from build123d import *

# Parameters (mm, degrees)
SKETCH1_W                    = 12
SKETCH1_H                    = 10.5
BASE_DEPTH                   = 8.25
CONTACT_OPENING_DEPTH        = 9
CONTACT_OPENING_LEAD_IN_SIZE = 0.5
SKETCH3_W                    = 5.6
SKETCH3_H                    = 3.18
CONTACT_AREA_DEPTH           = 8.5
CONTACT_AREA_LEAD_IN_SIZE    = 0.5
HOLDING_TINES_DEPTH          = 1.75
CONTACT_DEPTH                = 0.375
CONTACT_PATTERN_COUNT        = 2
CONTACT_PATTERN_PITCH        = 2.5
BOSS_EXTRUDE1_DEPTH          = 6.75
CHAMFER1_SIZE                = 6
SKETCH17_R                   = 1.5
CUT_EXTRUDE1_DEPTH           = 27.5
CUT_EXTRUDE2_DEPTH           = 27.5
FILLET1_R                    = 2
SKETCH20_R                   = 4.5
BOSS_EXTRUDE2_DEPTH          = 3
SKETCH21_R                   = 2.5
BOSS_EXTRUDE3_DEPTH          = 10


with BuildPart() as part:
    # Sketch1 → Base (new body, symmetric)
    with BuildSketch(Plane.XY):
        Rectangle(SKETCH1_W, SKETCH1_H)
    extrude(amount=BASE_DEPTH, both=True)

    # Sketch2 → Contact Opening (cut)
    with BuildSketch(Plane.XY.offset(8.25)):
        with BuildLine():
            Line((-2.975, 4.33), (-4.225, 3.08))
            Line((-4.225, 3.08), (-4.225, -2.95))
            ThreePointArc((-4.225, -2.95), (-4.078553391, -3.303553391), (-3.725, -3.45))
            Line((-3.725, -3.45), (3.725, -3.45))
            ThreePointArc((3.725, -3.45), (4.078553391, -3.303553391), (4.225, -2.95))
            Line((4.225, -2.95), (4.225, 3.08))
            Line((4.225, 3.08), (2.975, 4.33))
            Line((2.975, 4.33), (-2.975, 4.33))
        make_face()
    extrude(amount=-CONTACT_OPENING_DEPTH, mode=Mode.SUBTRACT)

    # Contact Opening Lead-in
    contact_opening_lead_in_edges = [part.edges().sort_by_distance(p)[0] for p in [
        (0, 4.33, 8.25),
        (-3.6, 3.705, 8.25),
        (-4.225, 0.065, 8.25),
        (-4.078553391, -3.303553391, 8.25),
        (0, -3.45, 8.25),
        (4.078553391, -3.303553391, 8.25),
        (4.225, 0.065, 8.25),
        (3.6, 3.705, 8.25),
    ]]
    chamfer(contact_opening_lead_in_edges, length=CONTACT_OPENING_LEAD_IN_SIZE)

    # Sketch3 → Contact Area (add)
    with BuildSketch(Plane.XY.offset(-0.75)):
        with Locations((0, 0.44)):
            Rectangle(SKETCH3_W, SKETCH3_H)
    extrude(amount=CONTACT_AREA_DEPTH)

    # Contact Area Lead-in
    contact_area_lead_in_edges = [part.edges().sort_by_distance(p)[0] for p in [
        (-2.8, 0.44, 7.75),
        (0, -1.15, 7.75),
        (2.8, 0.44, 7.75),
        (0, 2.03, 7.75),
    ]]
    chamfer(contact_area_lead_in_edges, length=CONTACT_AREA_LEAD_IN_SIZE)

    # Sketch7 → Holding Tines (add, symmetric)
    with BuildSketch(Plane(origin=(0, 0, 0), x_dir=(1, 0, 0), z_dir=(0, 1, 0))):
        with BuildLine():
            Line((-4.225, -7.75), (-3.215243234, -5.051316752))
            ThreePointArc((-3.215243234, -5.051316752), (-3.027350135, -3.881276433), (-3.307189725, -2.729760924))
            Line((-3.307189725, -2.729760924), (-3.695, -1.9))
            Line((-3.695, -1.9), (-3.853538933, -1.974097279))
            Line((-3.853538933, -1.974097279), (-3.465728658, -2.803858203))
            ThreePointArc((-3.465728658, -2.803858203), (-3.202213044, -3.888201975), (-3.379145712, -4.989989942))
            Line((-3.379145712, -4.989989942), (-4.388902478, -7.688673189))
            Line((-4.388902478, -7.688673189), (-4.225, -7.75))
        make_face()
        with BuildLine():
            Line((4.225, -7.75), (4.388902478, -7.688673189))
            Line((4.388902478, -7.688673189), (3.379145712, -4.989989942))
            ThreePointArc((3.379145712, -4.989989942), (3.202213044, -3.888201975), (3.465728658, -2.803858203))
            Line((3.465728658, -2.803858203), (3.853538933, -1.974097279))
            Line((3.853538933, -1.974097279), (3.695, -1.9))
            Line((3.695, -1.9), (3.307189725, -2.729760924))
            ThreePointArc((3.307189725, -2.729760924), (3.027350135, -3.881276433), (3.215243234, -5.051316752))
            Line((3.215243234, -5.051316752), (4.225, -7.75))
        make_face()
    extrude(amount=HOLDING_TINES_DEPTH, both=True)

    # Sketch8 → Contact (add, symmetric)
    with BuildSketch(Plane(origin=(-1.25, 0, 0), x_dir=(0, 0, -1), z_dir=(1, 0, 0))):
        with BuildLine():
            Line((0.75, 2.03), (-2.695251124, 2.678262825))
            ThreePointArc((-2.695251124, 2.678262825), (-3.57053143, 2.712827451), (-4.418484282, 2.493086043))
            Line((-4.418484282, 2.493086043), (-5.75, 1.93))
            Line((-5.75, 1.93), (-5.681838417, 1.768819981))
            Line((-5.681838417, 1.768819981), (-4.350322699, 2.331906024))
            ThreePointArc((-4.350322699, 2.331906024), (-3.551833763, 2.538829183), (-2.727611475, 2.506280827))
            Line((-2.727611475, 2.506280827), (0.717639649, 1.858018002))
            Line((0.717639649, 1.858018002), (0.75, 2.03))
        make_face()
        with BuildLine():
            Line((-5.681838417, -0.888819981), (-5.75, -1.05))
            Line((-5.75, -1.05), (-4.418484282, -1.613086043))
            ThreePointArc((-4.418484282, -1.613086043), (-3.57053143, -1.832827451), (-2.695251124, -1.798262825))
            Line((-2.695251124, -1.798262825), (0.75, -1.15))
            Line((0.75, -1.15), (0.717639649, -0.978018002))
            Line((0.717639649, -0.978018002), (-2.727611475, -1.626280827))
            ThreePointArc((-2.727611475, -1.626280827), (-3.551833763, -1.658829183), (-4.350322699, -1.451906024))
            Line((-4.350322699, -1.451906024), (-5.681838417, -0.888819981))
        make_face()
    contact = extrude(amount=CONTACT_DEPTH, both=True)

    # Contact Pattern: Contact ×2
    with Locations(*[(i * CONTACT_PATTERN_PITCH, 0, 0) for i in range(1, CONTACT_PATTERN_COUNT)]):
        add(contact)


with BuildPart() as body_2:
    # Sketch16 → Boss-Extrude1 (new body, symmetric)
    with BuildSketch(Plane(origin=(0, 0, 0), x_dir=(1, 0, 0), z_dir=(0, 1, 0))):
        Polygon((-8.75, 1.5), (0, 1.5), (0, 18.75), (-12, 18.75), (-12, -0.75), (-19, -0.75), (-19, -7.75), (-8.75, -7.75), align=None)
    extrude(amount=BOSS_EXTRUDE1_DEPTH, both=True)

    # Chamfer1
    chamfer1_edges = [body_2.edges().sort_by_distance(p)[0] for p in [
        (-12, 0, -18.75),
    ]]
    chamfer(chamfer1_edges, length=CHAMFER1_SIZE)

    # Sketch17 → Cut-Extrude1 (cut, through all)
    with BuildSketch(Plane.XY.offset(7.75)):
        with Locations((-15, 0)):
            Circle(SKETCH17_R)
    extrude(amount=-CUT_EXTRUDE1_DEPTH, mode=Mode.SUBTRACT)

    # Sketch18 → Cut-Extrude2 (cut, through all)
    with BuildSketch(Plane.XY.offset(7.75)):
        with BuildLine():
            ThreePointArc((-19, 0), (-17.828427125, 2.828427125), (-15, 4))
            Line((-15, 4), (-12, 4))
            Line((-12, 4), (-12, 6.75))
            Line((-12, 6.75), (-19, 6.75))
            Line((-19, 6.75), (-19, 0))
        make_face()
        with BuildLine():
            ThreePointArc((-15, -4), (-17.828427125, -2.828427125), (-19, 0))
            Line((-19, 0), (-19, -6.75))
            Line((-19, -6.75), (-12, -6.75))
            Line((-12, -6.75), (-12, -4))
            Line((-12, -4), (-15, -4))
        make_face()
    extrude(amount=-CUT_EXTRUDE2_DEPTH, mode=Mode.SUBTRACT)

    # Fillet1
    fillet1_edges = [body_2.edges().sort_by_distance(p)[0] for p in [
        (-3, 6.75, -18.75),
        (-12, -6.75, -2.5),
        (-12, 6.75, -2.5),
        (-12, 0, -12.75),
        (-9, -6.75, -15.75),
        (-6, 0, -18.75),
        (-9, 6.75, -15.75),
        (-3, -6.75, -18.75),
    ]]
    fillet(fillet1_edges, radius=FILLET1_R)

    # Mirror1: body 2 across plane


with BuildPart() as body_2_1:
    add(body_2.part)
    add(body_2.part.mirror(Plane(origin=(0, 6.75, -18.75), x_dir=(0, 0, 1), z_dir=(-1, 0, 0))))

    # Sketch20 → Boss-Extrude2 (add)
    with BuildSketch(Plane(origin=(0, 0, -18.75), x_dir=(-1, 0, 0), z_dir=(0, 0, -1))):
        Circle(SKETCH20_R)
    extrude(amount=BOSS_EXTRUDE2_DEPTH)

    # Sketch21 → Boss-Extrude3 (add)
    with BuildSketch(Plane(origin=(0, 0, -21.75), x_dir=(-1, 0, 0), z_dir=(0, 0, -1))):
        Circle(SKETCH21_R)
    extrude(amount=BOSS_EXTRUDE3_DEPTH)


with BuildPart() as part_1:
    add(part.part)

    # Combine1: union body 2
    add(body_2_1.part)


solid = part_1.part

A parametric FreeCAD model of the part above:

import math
import FreeCAD as App
import Part
import Sketcher
Q = App.Units.Quantity


def edges_at(feature, points):
    """Names of the edges that pass closest to the given points."""
    edges = feature.Shape.Edges
    near = lambda p: min(range(len(edges)), key=lambda i: edges[i].distToShape(Part.Vertex(*p))[0])
    return sorted({f"Edge{near(p) + 1}" for p in points})


def add_polygon(sketch, points):
    """Adds a closed chain of lines whose ends are joined by coincident constraints."""
    first, n = sketch.GeometryCount, len(points)
    for a, b in zip(points, points[1:] + points[:1]):
        sketch.addGeometry(Part.LineSegment(App.Vector(*a, 0), App.Vector(*b, 0)), False)
    for i in range(n):
        sketch.addConstraint(Sketcher.Constraint("Coincident", first + i, 2, first + (i + 1) % n, 1))

doc = App.newDocument("Part")
body = doc.addObject("PartDesign::Body", "Body")

sketch1 = body.newObject("Sketcher::SketchObject", "Sketch")
sketch1.AttachmentSupport = (doc.getObject("XY_Plane"), [""])
sketch1.MapMode = "FlatFace"
add_polygon(sketch1, [(-6, 5), (-6, -5), (6, -5), (6, 5)])
sketch1.addConstraint([
    Sketcher.Constraint("Vertical", 0),
    Sketcher.Constraint("Horizontal", 1),
    Sketcher.Constraint("Vertical", 2),
    Sketcher.Constraint("Horizontal", 3),
    Sketcher.Constraint("Symmetric", 0, 2, 2, 2, -1, 1),
    Sketcher.Constraint("DistanceX", 1, 1, 1, 2, Q("12 mm")),
    Sketcher.Constraint("DistanceY", 0, 2, 0, 1, Q("10.5 mm")),
])
pad1 = body.newObject("PartDesign::Pad", "Pad")
pad1.Profile = sketch1
pad1.Length = 16.5
pad1.Midplane = True

sketch2 = body.newObject("Sketcher::SketchObject", "Sketch001")
sketch2.AttachmentSupport = (doc.getObject("XY_Plane"), [""])
sketch2.MapMode = "FlatFace"
sketch2.AttachmentOffset = App.Placement(App.Vector(0, 0, 8.25), App.Rotation())
sketch2.addGeometry([
    Part.LineSegment(App.Vector(-2.98, 4.33, 0), App.Vector(-4.22, 3.08, 0)),
    Part.LineSegment(App.Vector(-4.22, 3.08, 0), App.Vector(-4.22, -2.95, 0)),
    Part.ArcOfCircle(Part.Circle(App.Vector(-3.73, -2.95, 0), App.Vector(0, 0, 1), 0.5), math.radians(180), math.radians(270)),
    Part.LineSegment(App.Vector(-3.73, -3.45, 0), App.Vector(3.73, -3.45, 0)),
    Part.ArcOfCircle(Part.Circle(App.Vector(3.73, -2.95, 0), App.Vector(0, 0, 1), 0.5), math.radians(-90), math.radians(0)),
    Part.LineSegment(App.Vector(4.22, -2.95, 0), App.Vector(4.22, 3.08, 0)),
    Part.LineSegment(App.Vector(4.22, 3.08, 0), App.Vector(2.98, 4.33, 0)),
    Part.LineSegment(App.Vector(2.98, 4.33, 0), App.Vector(-2.98, 4.33, 0)),
], False)
sketch2.addConstraint([
    Sketcher.Constraint("Coincident", 0, 2, 1, 1),
    Sketcher.Constraint("Tangent", 1, 2, 2, 1),
    Sketcher.Constraint("Tangent", 2, 2, 3, 1),
    Sketcher.Constraint("Tangent", 3, 2, 4, 1),
    Sketcher.Constraint("Tangent", 4, 2, 5, 1),
    Sketcher.Constraint("Coincident", 5, 2, 6, 1),
    Sketcher.Constraint("Coincident", 6, 2, 7, 1),
    Sketcher.Constraint("Coincident", 7, 2, 0, 1),
    Sketcher.Constraint("Vertical", 1),
    Sketcher.Constraint("Horizontal", 3),
    Sketcher.Constraint("Vertical", 5),
    Sketcher.Constraint("Horizontal", 7),
    Sketcher.Constraint("Equal", 2, 4),
    Sketcher.Constraint("Symmetric", 0, 2, 5, 2, -2),
    Sketcher.Constraint("Perpendicular", 0, 6),
    Sketcher.Constraint("Equal", 0, 6),
    Sketcher.Constraint("Radius", 2, Q("0.5 mm")),
    Sketcher.Constraint("DistanceX", 3, 1, 3, 2, Q("7.45 mm")),
    Sketcher.Constraint("DistanceX", 7, 2, 7, 1, Q("5.95 mm")),
    Sketcher.Constraint("DistanceY", 1, 2, 1, 1, Q("6.03 mm")),
    Sketcher.Constraint("DistanceY", 2, 3, -1, 1, Q("2.95 mm")),
])
pocket1 = body.newObject("PartDesign::Pocket", "Pocket")
pocket1.Profile = sketch2
pocket1.Length = 9
doc.recompute()

chamfer = body.newObject("PartDesign::Chamfer", "Chamfer")
chamfer.Base = (pocket1, edges_at(pocket1, [
    (0, 4.33, 8.25),
    (-3.6, 3.705, 8.25),
    (-4.225, 0.065, 8.25),
    (-4.079, -3.304, 8.25),
    (0, -3.45, 8.25),
    (4.079, -3.304, 8.25),
    (4.225, 0.065, 8.25),
    (3.6, 3.705, 8.25),
]))
chamfer.Size = 0.5

sketch3 = body.newObject("Sketcher::SketchObject", "Sketch002")
sketch3.AttachmentSupport = (doc.getObject("XY_Plane"), [""])
sketch3.MapMode = "FlatFace"
sketch3.AttachmentOffset = App.Placement(App.Vector(0, 0, -0.75), App.Rotation())
add_polygon(sketch3, [(-2.8, 2), (-2.8, -1.1), (2.8, -1.1), (2.8, 2)])
sketch3.addConstraint([
    Sketcher.Constraint("Vertical", 0),
    Sketcher.Constraint("Horizontal", 1),
    Sketcher.Constraint("Vertical", 2),
    Sketcher.Constraint("Horizontal", 3),
    Sketcher.Constraint("DistanceX", 1, 1, 1, 2, Q("5.6 mm")),
    Sketcher.Constraint("DistanceY", 0, 2, 0, 1, Q("3.18 mm")),
    Sketcher.Constraint("DistanceX", 0, 2, -1, 1, Q("2.8 mm")),
    Sketcher.Constraint("DistanceY", 0, 2, -1, 1, Q("1.15 mm")),
])
pad2 = body.newObject("PartDesign::Pad", "Pad001")
pad2.Profile = sketch3
pad2.Length = 8.5
doc.recompute()

chamfer2 = body.newObject("PartDesign::Chamfer", "Chamfer001")
chamfer2.Base = (pad2, edges_at(pad2, [
    (-2.8, 0.44, 7.75),
    (0, -1.15, 7.75),
    (2.8, 0.44, 7.75),
    (0, 2.03, 7.75),
]))
chamfer2.Size = 0.5

sketch4 = body.newObject("Sketcher::SketchObject", "Sketch003")
sketch4.AttachmentSupport = (doc.getObject("XZ_Plane"), [""])
sketch4.MapMode = "FlatFace"
sketch4.addGeometry([
    Part.LineSegment(App.Vector(-4.22, 7.75, 0), App.Vector(-3.22, 5.05, 0)),
    Part.ArcOfCircle(Part.Circle(App.Vector(-6.03, 4, 0), App.Vector(0, 0, 1), 3), math.radians(-25), math.radians(21)),
    Part.LineSegment(App.Vector(-3.31, 2.73, 0), App.Vector(-3.69, 1.9, 0)),
    Part.LineSegment(App.Vector(-3.69, 1.9, 0), App.Vector(-3.85, 1.97, 0)),
    Part.LineSegment(App.Vector(-3.85, 1.97, 0), App.Vector(-3.47, 2.8, 0)),
    Part.ArcOfCircle(Part.Circle(App.Vector(-6.03, 4, 0), App.Vector(0, 0, 1), 2.83), math.radians(-25), math.radians(21)),
    Part.LineSegment(App.Vector(-3.38, 4.99, 0), App.Vector(-4.39, 7.69, 0)),
    Part.LineSegment(App.Vector(-4.39, 7.69, 0), App.Vector(-4.22, 7.75, 0)),
    Part.LineSegment(App.Vector(4.22, 7.75, 0), App.Vector(4.39, 7.69, 0)),
    Part.LineSegment(App.Vector(4.39, 7.69, 0), App.Vector(3.38, 4.99, 0)),
    Part.ArcOfCircle(Part.Circle(App.Vector(6.03, 4, 0), App.Vector(0, 0, 1), 2.83), math.radians(159), math.radians(205)),
    Part.LineSegment(App.Vector(3.47, 2.8, 0), App.Vector(3.85, 1.97, 0)),
    Part.LineSegment(App.Vector(3.85, 1.97, 0), App.Vector(3.69, 1.9, 0)),
    Part.LineSegment(App.Vector(3.69, 1.9, 0), App.Vector(3.31, 2.73, 0)),
    Part.ArcOfCircle(Part.Circle(App.Vector(6.03, 4, 0), App.Vector(0, 0, 1), 3), math.radians(159), math.radians(205)),
    Part.LineSegment(App.Vector(3.22, 5.05, 0), App.Vector(4.22, 7.75, 0)),
], False)
sketch4.addConstraint([
    Sketcher.Constraint("Tangent", 0, 2, 1, 2),
    Sketcher.Constraint("Tangent", 1, 1, 2, 1),
    Sketcher.Constraint("Coincident", 2, 2, 3, 1),
    Sketcher.Constraint("Coincident", 3, 2, 4, 1),
    Sketcher.Constraint("Tangent", 4, 2, 5, 1),
    Sketcher.Constraint("Tangent", 5, 2, 6, 1),
    Sketcher.Constraint("Coincident", 6, 2, 7, 1),
    Sketcher.Constraint("Coincident", 7, 2, 0, 1),
    Sketcher.Constraint("Coincident", 8, 2, 9, 1),
    Sketcher.Constraint("Tangent", 9, 2, 10, 1),
    Sketcher.Constraint("Tangent", 10, 2, 11, 1),
    Sketcher.Constraint("Coincident", 11, 2, 12, 1),
    Sketcher.Constraint("Coincident", 12, 2, 13, 1),
    Sketcher.Constraint("Tangent", 13, 2, 14, 2),
    Sketcher.Constraint("Tangent", 14, 1, 15, 1),
    Sketcher.Constraint("Coincident", 15, 2, 8, 1),
    Sketcher.Constraint("Coincident", 5, 3, 1, 3),
    Sketcher.Constraint("Coincident", 14, 3, 10, 3),
    Sketcher.Constraint("Equal", 5, 10),
    Sketcher.Constraint("Equal", 1, 14),
    Sketcher.Constraint("Symmetric", 1, 3, 10, 3, -2),
    Sketcher.Constraint("Symmetric", 6, 2, 8, 2, -2),
    Sketcher.Constraint("Symmetric", 3, 2, 11, 2, -2),
    Sketcher.Constraint("Symmetric", 2, 2, 12, 2, -2),
    Sketcher.Constraint("Symmetric", 7, 2, 15, 2, -2),
    Sketcher.Constraint("Perpendicular", 2, 3),
    Sketcher.Constraint("Perpendicular", 3, 4),
    Sketcher.Constraint("Parallel", 0, 6),
    Sketcher.Constraint("Perpendicular", 6, 7),
    Sketcher.Constraint("Radius", 1, Q("3 mm")),
    Sketcher.Constraint("DistanceY", -1, 1, 1, 3, Q("4 mm")),
    Sketcher.Constraint("Radius", 5, Q("2.825 mm")),
    Sketcher.Constraint("DistanceY", -1, 1, 2, 2, Q("1.9 mm")),
    Sketcher.Constraint("DistanceX", 1, 3, 7, 2, Q("1.8 mm")),
    Sketcher.Constraint("DistanceY", -1, 1, 7, 2, Q("7.75 mm")),
    Sketcher.Constraint("DistanceX", 1, 3, 10, 3, Q("12.05 mm")),
    Sketcher.Constraint("DistanceX", 1, 3, 2, 2, Q("2.33 mm")),
])
pad3 = body.newObject("PartDesign::Pad", "Pad002")
pad3.Profile = sketch4
pad3.Length = 3.5
pad3.Midplane = True

sketch5 = body.newObject("Sketcher::SketchObject", "Sketch004")
sketch5.AttachmentSupport = (doc.getObject("YZ_Plane"), [""])
sketch5.MapMode = "FlatFace"
sketch5.AttachmentOffset = App.Placement(App.Vector(0, 0, -1.25), App.Rotation())
sketch5.addGeometry([
    Part.LineSegment(App.Vector(2.03, -0.75, 0), App.Vector(2.68, 2.7, 0)),
    Part.ArcOfCircle(Part.Circle(App.Vector(-0.27, 3.25, 0), App.Vector(0, 0, 1), 3), math.radians(-11), math.radians(23)),
    Part.LineSegment(App.Vector(2.49, 4.42, 0), App.Vector(1.93, 5.75, 0)),
    Part.LineSegment(App.Vector(1.93, 5.75, 0), App.Vector(1.77, 5.68, 0)),
    Part.LineSegment(App.Vector(1.77, 5.68, 0), App.Vector(2.33, 4.35, 0)),
    Part.ArcOfCircle(Part.Circle(App.Vector(-0.27, 3.25, 0), App.Vector(0, 0, 1), 2.83), math.radians(-11), math.radians(23)),
    Part.LineSegment(App.Vector(2.51, 2.73, 0), App.Vector(1.86, -0.72, 0)),
    Part.LineSegment(App.Vector(1.86, -0.72, 0), App.Vector(2.03, -0.75, 0)),
    Part.LineSegment(App.Vector(-0.89, 5.68, 0), App.Vector(-1.05, 5.75, 0)),
    Part.LineSegment(App.Vector(-1.05, 5.75, 0), App.Vector(-1.61, 4.42, 0)),
    Part.ArcOfCircle(Part.Circle(App.Vector(1.15, 3.25, 0), App.Vector(0, 0, 1), 3), math.radians(157), math.radians(191)),
    Part.LineSegment(App.Vector(-1.8, 2.7, 0), App.Vector(-1.15, -0.75, 0)),
    Part.LineSegment(App.Vector(-1.15, -0.75, 0), App.Vector(-0.98, -0.72, 0)),
    Part.LineSegment(App.Vector(-0.98, -0.72, 0), App.Vector(-1.63, 2.73, 0)),
    Part.ArcOfCircle(Part.Circle(App.Vector(1.15, 3.25, 0), App.Vector(0, 0, 1), 2.83), math.radians(157), math.radians(191)),
    Part.LineSegment(App.Vector(-1.45, 4.35, 0), App.Vector(-0.89, 5.68, 0)),
], False)
sketch5.addConstraint([
    Sketcher.Constraint("Tangent", 0, 2, 1, 1),
    Sketcher.Constraint("Tangent", 1, 2, 2, 1),
    Sketcher.Constraint("Coincident", 2, 2, 3, 1),
    Sketcher.Constraint("Coincident", 3, 2, 4, 1),
    Sketcher.Constraint("Tangent", 4, 2, 5, 2),
    Sketcher.Constraint("Tangent", 5, 1, 6, 1),
    Sketcher.Constraint("Coincident", 6, 2, 7, 1),
    Sketcher.Constraint("Coincident", 7, 2, 0, 1),
    Sketcher.Constraint("Coincident", 8, 2, 9, 1),
    Sketcher.Constraint("Tangent", 9, 2, 10, 1),
    Sketcher.Constraint("Tangent", 10, 2, 11, 1),
    Sketcher.Constraint("Coincident", 11, 2, 12, 1),
    Sketcher.Constraint("Coincident", 12, 2, 13, 1),
    Sketcher.Constraint("Tangent", 13, 2, 14, 2),
    Sketcher.Constraint("Tangent", 14, 1, 15, 1),
    Sketcher.Constraint("Coincident", 15, 2, 8, 1),
    Sketcher.Constraint("Coincident", 5, 3, 1, 3),
    Sketcher.Constraint("Coincident", 14, 3, 10, 3),
    Sketcher.Constraint("Equal", 1, 10),
    Sketcher.Constraint("Equal", 5, 14),
    Sketcher.Constraint("Perpendicular", 2, 3),
    Sketcher.Constraint("Perpendicular", 3, 4),
    Sketcher.Constraint("Parallel", 0, 6),
    Sketcher.Constraint("Perpendicular", 6, 7),
    Sketcher.Constraint("Perpendicular", 8, 9),
    Sketcher.Constraint("Perpendicular", 11, 12),
    Sketcher.Constraint("Perpendicular", 12, 13),
    Sketcher.Constraint("Parallel", 9, 15),
    Sketcher.Constraint("Horizontal", 5, 3, 10, 3),
    Sketcher.Constraint("Horizontal", 2, 2, 8, 2),
    Sketcher.Constraint("Horizontal", 1, 2, 9, 2),
    Sketcher.Constraint("Horizontal", 0, 2, 10, 2),
    Sketcher.Constraint("Horizontal", 7, 2, 11, 2),
    Sketcher.Constraint("Radius", 1, Q("3 mm")),
    Sketcher.Constraint("Radius", 5, Q("2.825 mm")),
    Sketcher.Constraint("DistanceY", 7, 2, 14, 3, Q("4 mm")),
    Sketcher.Constraint("DistanceY", 14, 3, 2, 2, Q("2.5 mm")),
    Sketcher.Constraint("DistanceX", 1, 3, 2, 2, Q("2.2 mm")),
    Sketcher.Constraint("DistanceX", 1, 3, -1, 1, Q("0.27 mm")),
    Sketcher.Constraint("DistanceY", -1, 1, 1, 3, Q("3.25 mm")),
    Sketcher.Constraint("DistanceX", -1, 1, 10, 3, Q("1.15 mm")),
    Sketcher.Constraint("DistanceX", -1, 1, 7, 2, Q("2.03 mm")),
])
pad4 = body.newObject("PartDesign::Pad", "Pad003")
pad4.Profile = sketch5
pad4.Length = 0.75
pad4.Midplane = True
doc.recompute()

linearpattern = body.newObject("PartDesign::LinearPattern", "LinearPattern")
linearpattern.Originals = [pad4]
linearpattern.Direction = (doc.getObject("X_Axis"), [""])
linearpattern.Mode = "offset"
linearpattern.Offset = 2.5
linearpattern.Occurrences = 2
body.Tip = linearpattern
body2 = doc.addObject("PartDesign::Body", "Body001")

sketch6 = body2.newObject("Sketcher::SketchObject", "Sketch005")
sketch6.AttachmentSupport = (doc.getObject("XZ_Plane001"), [""])
sketch6.MapMode = "FlatFace"
add_polygon(sketch6, [(-9, -2), (0, -2), (0, -19), (-12, -19), (-12, 1), (-19, 1), (-19, 8), (-9, 8)])
sketch6.addConstraint([
    Sketcher.Constraint("Horizontal", 0),
    Sketcher.Constraint("Vertical", 1),
    Sketcher.Constraint("Horizontal", 2),
    Sketcher.Constraint("Vertical", 3),
    Sketcher.Constraint("Horizontal", 4),
    Sketcher.Constraint("Vertical", 5),
    Sketcher.Constraint("Horizontal", 6),
    Sketcher.Constraint("Vertical", 7),
    Sketcher.Constraint("PointOnObject", 0, 2, -2),
    Sketcher.Constraint("Equal", 4, 5),
    Sketcher.Constraint("DistanceX", 2, 2, 2, 1, Q("12 mm")),
    Sketcher.Constraint("DistanceX", 4, 2, 4, 1, Q("7 mm")),
    Sketcher.Constraint("DistanceY", 3, 1, 3, 2, Q("19.5 mm")),
    Sketcher.Constraint("DistanceX", 0, 1, 0, 2, Q("8.75 mm")),
    Sketcher.Constraint("DistanceY", 1, 2, 1, 1, Q("17.25 mm")),
    Sketcher.Constraint("DistanceY", 0, 2, -1, 1, Q("1.5 mm")),
])
pad5 = body2.newObject("PartDesign::Pad", "Pad004")
pad5.Profile = sketch6
pad5.Length = 13.5
pad5.Midplane = True
doc.recompute()

chamfer3 = body2.newObject("PartDesign::Chamfer", "Chamfer002")
chamfer3.Base = (pad5, edges_at(pad5, [(-12, 0, -18.75)]))
chamfer3.Size = 6

sketch7 = body2.newObject("Sketcher::SketchObject", "Sketch006")
sketch7.AttachmentSupport = (doc.getObject("XY_Plane001"), [""])
sketch7.MapMode = "FlatFace"
sketch7.AttachmentOffset = App.Placement(App.Vector(0, 0, 7.75), App.Rotation())
sketch7.addGeometry(Part.Circle(App.Vector(-15, 0, 0), App.Vector(0, 0, 1), 1.5), False)
sketch7.addConstraint([
    Sketcher.Constraint("PointOnObject", 0, 3, -1),
    Sketcher.Constraint("Diameter", 0, Q("3 mm")),
    Sketcher.Constraint("DistanceX", 0, 3, -1, 1, Q("15 mm")),
])
pocket2 = body2.newObject("PartDesign::Pocket", "Pocket001")
pocket2.Profile = sketch7
pocket2.Type = "ThroughAll"

sketch8 = body2.newObject("Sketcher::SketchObject", "Sketch007")
sketch8.AttachmentSupport = (doc.getObject("XY_Plane001"), [""])
sketch8.MapMode = "FlatFace"
sketch8.AttachmentOffset = App.Placement(App.Vector(0, 0, 7.75), App.Rotation())
sketch8.addGeometry([
    Part.ArcOfCircle(Part.Circle(App.Vector(-15, 0, 0), App.Vector(0, 0, 1), 4), math.radians(90), math.radians(180)),
    Part.LineSegment(App.Vector(-15, 4, 0), App.Vector(-12, 4, 0)),
    Part.LineSegment(App.Vector(-12, 4, 0), App.Vector(-12, 6.8, 0)),
    Part.LineSegment(App.Vector(-12, 6.8, 0), App.Vector(-19, 6.8, 0)),
    Part.LineSegment(App.Vector(-19, 6.8, 0), App.Vector(-19, 0, 0)),
    Part.ArcOfCircle(Part.Circle(App.Vector(-15, 0, 0), App.Vector(0, 0, 1), 4), math.radians(180), math.radians(270)),
    Part.LineSegment(App.Vector(-19, 0, 0), App.Vector(-19, -6.8, 0)),
    Part.LineSegment(App.Vector(-19, -6.8, 0), App.Vector(-12, -6.8, 0)),
    Part.LineSegment(App.Vector(-12, -6.8, 0), App.Vector(-12, -4, 0)),
    Part.LineSegment(App.Vector(-12, -4, 0), App.Vector(-15, -4, 0)),
], False)
sketch8.addConstraint([
    Sketcher.Constraint("Tangent", 0, 1, 1, 1),
    Sketcher.Constraint("Coincident", 1, 2, 2, 1),
    Sketcher.Constraint("Coincident", 2, 2, 3, 1),
    Sketcher.Constraint("Coincident", 3, 2, 4, 1),
    Sketcher.Constraint("Tangent", 4, 2, 0, 2),
    Sketcher.Constraint("Tangent", 5, 1, 6, 1),
    Sketcher.Constraint("Coincident", 6, 2, 7, 1),
    Sketcher.Constraint("Coincident", 7, 2, 8, 1),
    Sketcher.Constraint("Coincident", 8, 2, 9, 1),
    Sketcher.Constraint("Tangent", 9, 2, 5, 2),
    Sketcher.Constraint("Horizontal", 1),
    Sketcher.Constraint("Vertical", 2),
    Sketcher.Constraint("Horizontal", 3),
    Sketcher.Constraint("Vertical", 4),
    Sketcher.Constraint("Vertical", 6),
    Sketcher.Constraint("Horizontal", 7),
    Sketcher.Constraint("Vertical", 8),
    Sketcher.Constraint("Horizontal", 9),
    Sketcher.Constraint("Coincident", 5, 3, 0, 3),
    Sketcher.Constraint("Equal", 0, 5),
    Sketcher.Constraint("Symmetric", 2, 2, 7, 2, -1),
    Sketcher.Constraint("PointOnObject", 0, 3, -1),
    Sketcher.Constraint("Radius", 0, Q("4 mm")),
    Sketcher.Constraint("DistanceX", 1, 1, 1, 2, Q("3 mm")),
    Sketcher.Constraint("DistanceX", 0, 3, -1, 1, Q("15 mm")),
    Sketcher.Constraint("DistanceY", 2, 1, 2, 2, Q("2.75 mm")),
])
pocket3 = body2.newObject("PartDesign::Pocket", "Pocket002")
pocket3.Profile = sketch8
pocket3.Type = "ThroughAll"
doc.recompute()

fillet = body2.newObject("PartDesign::Fillet", "Fillet")
fillet.Base = (pocket3, edges_at(pocket3, [
    (-3, 6.75, -18.75),
    (-12, -6.75, -2.5),
    (-12, 6.75, -2.5),
    (-12, 0, -12.75),
    (-9, -6.75, -15.75),
    (-6, 0, -18.75),
    (-9, 6.75, -15.75),
    (-3, -6.75, -18.75),
]))
fillet.Radius = 2
body3 = doc.addObject("PartDesign::Body", "Body002")
doc.recompute()

body3.BaseFeature = body2
doc.recompute()

mirroring = doc.addObject("Part::Mirroring", "Mirroring")
mirroring.Source = body2
mirroring.Base = App.Vector(0, 6.75, -18.75)
mirroring.Normal = App.Vector(-1, 0, 0)
body4 = doc.addObject("PartDesign::Body", "Body003")
body4.BaseFeature = mirroring
boolean = body3.newObject("PartDesign::Boolean", "Boolean")
boolean.Type = "Fuse"
boolean.addObjects([body4])
doc.recompute()

sketch9 = body3.newObject("Sketcher::SketchObject", "Sketch008")
sketch9.AttachmentSupport = (doc.getObject("XY_Plane002"), [""])
sketch9.MapMode = "FlatFace"
sketch9.AttachmentOffset = App.Placement(App.Vector(0, 0, -18.75), App.Rotation())
sketch9.addGeometry(Part.Circle(App.Vector(0, 0, 0), App.Vector(0, 0, 1), 4.5), False)
sketch9.addConstraint([
    Sketcher.Constraint("Coincident", 0, 3, -1, 1),
    Sketcher.Constraint("Diameter", 0, Q("9 mm")),
])
pad6 = body3.newObject("PartDesign::Pad", "Pad005")
pad6.Profile = sketch9
pad6.Length = 3
pad6.Reversed = True

sketch10 = body3.newObject("Sketcher::SketchObject", "Sketch009")
sketch10.AttachmentSupport = (doc.getObject("XY_Plane002"), [""])
sketch10.MapMode = "FlatFace"
sketch10.AttachmentOffset = App.Placement(App.Vector(0, 0, -21.75), App.Rotation())
sketch10.addGeometry(Part.Circle(App.Vector(0, 0, 0), App.Vector(0, 0, 1), 2.5), False)
sketch10.addConstraint([
    Sketcher.Constraint("Coincident", 0, 3, -1, 1),
    Sketcher.Constraint("Diameter", 0, Q("5 mm")),
])
pad7 = body3.newObject("PartDesign::Pad", "Pad006")
pad7.Profile = sketch10
pad7.Length = 10
pad7.Reversed = True
doc.recompute()

boolean2 = body.newObject("PartDesign::Boolean", "Boolean001")
boolean2.Type = "Fuse"
boolean2.addObjects([body3])
mirroring.Visibility = False

doc.recompute()
